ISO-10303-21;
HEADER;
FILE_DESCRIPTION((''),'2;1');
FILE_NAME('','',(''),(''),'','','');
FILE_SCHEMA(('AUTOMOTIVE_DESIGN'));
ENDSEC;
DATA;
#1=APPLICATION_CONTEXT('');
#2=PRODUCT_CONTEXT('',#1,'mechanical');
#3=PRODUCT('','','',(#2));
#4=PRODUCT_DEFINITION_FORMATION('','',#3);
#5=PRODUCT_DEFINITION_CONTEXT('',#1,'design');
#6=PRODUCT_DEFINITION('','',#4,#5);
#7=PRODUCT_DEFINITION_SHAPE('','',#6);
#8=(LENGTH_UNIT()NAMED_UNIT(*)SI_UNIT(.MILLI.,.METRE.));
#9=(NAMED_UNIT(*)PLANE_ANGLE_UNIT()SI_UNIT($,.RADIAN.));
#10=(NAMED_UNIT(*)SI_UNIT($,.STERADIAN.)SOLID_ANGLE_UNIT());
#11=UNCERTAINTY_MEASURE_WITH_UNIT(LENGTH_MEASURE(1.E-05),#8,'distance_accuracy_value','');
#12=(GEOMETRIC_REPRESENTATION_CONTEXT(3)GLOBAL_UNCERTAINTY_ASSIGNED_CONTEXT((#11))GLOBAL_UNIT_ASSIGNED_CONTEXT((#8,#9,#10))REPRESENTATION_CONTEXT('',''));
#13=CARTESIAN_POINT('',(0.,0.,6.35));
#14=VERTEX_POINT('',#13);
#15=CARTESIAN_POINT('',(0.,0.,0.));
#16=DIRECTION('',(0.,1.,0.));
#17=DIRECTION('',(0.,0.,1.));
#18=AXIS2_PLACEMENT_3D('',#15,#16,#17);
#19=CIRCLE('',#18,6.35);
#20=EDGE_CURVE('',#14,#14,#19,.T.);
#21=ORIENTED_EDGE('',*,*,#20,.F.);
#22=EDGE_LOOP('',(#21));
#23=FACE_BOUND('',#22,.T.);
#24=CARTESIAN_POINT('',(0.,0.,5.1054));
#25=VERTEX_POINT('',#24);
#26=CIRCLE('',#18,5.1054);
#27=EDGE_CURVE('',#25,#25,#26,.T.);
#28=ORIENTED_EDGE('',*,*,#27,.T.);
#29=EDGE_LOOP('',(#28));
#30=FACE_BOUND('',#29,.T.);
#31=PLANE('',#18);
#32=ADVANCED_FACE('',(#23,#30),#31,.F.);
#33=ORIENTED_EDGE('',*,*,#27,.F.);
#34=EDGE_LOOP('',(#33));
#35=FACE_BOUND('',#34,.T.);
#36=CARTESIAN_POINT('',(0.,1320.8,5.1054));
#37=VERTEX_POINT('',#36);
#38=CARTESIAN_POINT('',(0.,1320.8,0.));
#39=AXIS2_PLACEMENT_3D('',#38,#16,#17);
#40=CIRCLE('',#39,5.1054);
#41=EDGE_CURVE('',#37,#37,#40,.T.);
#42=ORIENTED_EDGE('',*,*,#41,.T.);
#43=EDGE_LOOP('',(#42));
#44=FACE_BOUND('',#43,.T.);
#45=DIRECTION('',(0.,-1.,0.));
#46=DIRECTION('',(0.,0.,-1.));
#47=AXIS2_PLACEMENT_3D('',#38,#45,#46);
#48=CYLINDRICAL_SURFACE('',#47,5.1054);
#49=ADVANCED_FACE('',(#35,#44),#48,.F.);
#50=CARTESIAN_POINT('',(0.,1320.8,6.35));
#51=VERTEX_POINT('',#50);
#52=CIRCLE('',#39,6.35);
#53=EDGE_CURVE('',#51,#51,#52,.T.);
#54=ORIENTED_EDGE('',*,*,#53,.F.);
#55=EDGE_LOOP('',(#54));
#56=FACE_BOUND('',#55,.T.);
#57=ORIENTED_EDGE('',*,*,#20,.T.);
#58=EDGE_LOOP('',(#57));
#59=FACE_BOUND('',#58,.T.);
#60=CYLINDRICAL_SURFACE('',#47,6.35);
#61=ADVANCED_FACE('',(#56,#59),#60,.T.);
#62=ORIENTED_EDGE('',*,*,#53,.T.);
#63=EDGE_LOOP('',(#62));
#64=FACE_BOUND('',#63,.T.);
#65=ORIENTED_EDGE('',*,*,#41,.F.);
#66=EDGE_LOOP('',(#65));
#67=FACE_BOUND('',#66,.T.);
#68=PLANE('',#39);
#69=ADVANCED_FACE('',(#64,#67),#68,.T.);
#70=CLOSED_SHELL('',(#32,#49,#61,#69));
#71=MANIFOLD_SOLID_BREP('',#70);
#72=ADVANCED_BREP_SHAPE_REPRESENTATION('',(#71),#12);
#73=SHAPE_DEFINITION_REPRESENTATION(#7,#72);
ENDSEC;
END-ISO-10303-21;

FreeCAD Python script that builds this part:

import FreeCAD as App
import Part
import Sketcher

V = App.Vector
Q = App.Units.Quantity

doc = App.newDocument("Part")
body = doc.addObject("PartDesign::Body", "Body")

# Sketch on XZ plane
sketch1 = doc.addObject("Sketcher::SketchObject", "Sketch")
body.addObject(sketch1)
sketch1.AttachmentSupport = (doc.XZ_Plane, [""])
sketch1.MapMode = "FlatFace"
sketch1.addGeometry([
    Part.Circle(V(0, 0, 0), V(0, 0, 1), 6),
    Part.Circle(V(0, 0, 0), V(0, 0, 1), 5),
], False)
sketch1.addConstraint([
    Sketcher.Constraint("Coincident", 0, 3, -1, 1),
    Sketcher.Constraint("Coincident", 1, 3, -1, 1),
    Sketcher.Constraint("Diameter", 0, Q("0.5 in")),
    Sketcher.Constraint("Diameter", 1, Q("0.402 in")),
])
pad1 = doc.addObject("PartDesign::Pad", "Pad")
body.addObject(pad1)
pad1.Profile = sketch1
pad1.Length = Q("52 in")
pad1.Reversed = True

doc.recompute()
